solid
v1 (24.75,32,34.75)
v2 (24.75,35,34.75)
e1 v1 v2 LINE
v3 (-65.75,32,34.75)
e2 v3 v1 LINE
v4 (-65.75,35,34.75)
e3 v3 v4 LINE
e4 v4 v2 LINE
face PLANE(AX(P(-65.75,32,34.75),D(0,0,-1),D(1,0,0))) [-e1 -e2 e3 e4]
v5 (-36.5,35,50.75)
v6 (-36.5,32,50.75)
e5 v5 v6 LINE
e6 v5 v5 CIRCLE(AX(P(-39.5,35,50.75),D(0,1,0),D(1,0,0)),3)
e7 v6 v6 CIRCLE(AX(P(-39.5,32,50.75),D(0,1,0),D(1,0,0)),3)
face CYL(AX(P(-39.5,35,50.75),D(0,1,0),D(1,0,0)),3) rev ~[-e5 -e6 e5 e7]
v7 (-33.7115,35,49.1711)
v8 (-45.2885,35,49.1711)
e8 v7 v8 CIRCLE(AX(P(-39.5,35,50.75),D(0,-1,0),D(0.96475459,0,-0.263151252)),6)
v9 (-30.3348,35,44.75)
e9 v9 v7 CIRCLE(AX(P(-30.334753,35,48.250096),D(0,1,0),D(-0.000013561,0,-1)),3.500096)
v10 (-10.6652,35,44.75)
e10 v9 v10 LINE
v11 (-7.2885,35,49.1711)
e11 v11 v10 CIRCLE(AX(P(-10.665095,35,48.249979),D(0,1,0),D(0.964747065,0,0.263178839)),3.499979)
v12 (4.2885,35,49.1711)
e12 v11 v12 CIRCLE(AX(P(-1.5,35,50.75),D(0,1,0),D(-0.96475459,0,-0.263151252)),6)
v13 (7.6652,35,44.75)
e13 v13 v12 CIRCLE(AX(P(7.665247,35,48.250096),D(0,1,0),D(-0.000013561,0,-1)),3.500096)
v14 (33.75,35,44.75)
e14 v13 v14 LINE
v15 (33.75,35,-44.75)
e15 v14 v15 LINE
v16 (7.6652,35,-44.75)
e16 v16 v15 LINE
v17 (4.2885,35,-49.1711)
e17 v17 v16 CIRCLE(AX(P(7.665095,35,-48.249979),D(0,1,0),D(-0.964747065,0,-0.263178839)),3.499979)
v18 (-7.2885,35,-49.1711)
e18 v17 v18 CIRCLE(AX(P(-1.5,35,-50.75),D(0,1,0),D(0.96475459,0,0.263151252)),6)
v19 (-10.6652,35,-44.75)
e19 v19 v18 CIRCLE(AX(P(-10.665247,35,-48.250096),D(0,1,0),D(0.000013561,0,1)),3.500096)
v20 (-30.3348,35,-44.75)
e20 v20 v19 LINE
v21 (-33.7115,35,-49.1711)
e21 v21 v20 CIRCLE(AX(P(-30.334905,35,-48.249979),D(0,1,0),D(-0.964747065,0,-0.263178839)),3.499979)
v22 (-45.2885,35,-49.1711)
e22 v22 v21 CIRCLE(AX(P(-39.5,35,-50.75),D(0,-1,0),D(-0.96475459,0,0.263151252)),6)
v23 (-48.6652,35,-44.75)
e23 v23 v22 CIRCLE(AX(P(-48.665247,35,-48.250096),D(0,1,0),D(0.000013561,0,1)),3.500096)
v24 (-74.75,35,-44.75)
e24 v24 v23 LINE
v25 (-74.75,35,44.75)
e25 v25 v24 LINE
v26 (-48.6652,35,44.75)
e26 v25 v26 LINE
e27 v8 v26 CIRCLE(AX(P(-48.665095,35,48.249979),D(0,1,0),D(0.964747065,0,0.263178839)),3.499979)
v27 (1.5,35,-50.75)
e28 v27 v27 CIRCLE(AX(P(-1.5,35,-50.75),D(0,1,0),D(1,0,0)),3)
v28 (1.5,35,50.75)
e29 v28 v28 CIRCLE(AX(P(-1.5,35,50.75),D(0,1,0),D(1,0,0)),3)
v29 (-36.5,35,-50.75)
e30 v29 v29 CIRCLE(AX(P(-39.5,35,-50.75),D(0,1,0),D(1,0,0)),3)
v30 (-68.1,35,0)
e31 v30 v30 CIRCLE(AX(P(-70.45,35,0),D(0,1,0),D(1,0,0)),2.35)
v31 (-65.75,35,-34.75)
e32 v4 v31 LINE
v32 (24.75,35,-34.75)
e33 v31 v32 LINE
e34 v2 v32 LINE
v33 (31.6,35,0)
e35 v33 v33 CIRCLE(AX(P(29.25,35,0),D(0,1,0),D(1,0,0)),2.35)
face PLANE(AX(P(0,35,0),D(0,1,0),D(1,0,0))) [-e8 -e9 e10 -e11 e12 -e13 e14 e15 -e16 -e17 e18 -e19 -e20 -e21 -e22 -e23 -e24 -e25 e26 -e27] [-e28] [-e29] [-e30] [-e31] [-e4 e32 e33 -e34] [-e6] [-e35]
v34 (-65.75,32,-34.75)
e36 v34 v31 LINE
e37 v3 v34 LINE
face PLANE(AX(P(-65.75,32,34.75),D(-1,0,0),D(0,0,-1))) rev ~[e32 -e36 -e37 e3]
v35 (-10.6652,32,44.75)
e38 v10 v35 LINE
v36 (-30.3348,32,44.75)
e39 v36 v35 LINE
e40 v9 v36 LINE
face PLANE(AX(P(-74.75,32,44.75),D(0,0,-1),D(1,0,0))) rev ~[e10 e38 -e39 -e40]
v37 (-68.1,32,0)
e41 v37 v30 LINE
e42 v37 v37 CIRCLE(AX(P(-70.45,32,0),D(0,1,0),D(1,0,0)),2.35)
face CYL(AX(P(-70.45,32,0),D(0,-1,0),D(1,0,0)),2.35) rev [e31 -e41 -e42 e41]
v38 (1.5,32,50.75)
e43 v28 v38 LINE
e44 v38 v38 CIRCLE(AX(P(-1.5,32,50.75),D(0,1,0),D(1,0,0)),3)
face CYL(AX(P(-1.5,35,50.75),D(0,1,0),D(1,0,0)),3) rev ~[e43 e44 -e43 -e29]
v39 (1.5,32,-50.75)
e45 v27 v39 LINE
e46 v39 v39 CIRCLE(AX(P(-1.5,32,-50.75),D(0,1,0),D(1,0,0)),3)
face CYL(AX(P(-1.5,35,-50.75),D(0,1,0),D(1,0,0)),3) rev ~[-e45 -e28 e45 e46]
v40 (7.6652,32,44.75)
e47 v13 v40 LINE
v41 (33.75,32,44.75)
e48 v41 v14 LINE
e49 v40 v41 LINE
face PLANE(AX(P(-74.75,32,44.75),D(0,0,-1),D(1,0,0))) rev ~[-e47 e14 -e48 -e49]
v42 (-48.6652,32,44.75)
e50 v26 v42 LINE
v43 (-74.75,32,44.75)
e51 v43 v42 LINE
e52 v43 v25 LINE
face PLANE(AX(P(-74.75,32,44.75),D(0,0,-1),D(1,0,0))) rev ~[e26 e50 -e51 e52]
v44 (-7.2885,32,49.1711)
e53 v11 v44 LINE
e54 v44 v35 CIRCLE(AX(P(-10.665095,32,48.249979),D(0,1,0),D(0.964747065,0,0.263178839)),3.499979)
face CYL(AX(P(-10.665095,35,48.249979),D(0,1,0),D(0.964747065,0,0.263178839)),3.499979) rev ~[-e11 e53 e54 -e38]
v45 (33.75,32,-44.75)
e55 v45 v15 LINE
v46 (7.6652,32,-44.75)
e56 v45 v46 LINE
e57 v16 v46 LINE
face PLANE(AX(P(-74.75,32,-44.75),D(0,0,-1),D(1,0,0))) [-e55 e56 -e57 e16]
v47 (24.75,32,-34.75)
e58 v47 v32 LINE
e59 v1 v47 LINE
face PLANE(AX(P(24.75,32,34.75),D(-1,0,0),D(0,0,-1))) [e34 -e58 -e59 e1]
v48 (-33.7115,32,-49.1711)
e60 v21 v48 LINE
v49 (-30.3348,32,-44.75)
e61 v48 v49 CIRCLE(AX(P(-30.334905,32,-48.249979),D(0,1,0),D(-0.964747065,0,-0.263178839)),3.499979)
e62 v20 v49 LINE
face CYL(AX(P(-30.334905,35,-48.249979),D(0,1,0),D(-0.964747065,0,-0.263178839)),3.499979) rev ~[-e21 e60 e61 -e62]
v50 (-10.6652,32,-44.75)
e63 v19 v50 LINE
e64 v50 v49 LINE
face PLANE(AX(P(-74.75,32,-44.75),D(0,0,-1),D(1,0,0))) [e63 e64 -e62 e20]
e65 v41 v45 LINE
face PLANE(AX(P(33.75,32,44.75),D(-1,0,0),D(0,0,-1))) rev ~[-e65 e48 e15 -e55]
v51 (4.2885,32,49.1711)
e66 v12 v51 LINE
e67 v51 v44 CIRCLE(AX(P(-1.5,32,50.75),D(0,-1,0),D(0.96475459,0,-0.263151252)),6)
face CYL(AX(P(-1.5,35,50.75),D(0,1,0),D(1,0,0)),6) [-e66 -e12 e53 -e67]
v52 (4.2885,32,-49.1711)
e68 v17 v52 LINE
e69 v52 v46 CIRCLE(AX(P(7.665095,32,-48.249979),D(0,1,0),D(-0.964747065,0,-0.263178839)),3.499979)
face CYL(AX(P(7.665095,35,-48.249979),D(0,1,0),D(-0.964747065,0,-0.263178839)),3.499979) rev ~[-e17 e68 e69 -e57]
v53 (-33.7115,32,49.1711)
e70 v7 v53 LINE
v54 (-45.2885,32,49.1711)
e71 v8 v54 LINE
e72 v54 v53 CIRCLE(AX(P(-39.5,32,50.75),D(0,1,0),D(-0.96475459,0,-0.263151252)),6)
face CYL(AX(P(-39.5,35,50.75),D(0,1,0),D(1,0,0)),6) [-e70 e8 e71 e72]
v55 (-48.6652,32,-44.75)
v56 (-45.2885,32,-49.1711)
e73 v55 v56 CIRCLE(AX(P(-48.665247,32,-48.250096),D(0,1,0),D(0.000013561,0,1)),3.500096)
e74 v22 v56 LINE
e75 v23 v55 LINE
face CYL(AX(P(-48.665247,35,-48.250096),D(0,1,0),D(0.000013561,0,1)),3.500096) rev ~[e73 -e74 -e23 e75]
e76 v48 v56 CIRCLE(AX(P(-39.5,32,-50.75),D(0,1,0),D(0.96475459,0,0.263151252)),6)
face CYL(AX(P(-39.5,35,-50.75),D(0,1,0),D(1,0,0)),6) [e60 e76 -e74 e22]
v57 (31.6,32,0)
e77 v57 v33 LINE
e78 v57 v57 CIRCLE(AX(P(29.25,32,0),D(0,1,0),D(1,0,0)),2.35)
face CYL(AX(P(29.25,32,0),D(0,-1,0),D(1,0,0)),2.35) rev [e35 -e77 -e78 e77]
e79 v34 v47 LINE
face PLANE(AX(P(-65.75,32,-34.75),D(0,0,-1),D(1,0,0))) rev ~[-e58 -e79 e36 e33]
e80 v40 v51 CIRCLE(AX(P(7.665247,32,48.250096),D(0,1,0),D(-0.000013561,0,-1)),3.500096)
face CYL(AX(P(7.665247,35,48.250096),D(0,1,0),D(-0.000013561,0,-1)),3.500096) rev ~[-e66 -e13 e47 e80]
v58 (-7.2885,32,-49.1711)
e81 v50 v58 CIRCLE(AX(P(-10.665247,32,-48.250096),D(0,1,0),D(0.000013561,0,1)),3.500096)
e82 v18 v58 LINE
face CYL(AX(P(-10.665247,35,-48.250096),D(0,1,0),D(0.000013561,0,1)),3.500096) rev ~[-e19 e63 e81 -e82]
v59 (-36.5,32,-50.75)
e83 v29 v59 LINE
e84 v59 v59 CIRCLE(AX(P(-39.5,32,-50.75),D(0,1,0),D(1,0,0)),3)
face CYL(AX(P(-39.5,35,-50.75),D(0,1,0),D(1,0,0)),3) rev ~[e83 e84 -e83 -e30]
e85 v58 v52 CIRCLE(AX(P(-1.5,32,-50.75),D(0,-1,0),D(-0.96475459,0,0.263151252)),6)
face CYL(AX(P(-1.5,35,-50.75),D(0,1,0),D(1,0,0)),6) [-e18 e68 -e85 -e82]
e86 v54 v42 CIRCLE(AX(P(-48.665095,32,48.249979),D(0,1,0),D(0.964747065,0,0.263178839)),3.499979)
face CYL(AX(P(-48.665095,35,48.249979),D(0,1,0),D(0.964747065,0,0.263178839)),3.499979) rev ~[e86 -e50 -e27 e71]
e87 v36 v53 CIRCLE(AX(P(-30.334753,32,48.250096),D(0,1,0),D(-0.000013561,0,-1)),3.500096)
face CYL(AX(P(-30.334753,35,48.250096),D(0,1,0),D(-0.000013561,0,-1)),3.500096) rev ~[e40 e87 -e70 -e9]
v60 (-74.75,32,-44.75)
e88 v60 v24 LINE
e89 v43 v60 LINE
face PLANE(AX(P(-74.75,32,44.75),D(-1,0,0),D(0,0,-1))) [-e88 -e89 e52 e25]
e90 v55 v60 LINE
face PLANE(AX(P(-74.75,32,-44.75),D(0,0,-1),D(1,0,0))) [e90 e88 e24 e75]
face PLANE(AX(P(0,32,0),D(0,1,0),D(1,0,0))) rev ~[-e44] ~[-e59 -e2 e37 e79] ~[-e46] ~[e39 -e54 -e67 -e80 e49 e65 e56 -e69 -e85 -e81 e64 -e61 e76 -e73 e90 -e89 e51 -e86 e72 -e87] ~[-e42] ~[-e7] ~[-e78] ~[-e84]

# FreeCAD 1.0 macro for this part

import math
import FreeCAD as App
import Part
import Sketcher
Q = App.Units.Quantity


def add_polygon(sketch, points):
    """Adds a closed chain of lines whose ends are joined by coincident constraints."""
    first, n = sketch.GeometryCount, len(points)
    for a, b in zip(points, points[1:] + points[:1]):
        sketch.addGeometry(Part.LineSegment(App.Vector(*a, 0), App.Vector(*b, 0)), False)
    for i in range(n):
        sketch.addConstraint(Sketcher.Constraint("Coincident", first + i, 2, first + (i + 1) % n, 1))

doc = App.newDocument("Part")
body = doc.addObject("PartDesign::Body", "Body")

# Sketch on XZ plane
sketch1 = body.newObject("Sketcher::SketchObject", "Sketch")
sketch1.AttachmentSupport = (doc.getObject("XZ_Plane"), [""])
sketch1.MapMode = "FlatFace"
sketch1.AttachmentOffset = App.Placement(App.Vector(0, 0, -32), App.Rotation())
add_polygon(sketch1, [(-75, -45), (-75, 45), (34, 45), (34, -45)])  # lines 0-3
add_polygon(sketch1, [(-66, 35), (-66, -35), (25, -35), (25, 35)])  # lines 4-7
sketch1.addConstraint([
    Sketcher.Constraint("Vertical", 0),
    Sketcher.Constraint("Horizontal", 1),
    Sketcher.Constraint("Vertical", 2),
    Sketcher.Constraint("Horizontal", 3),
    Sketcher.Constraint("Vertical", 4),
    Sketcher.Constraint("Horizontal", 5),
    Sketcher.Constraint("Vertical", 6),
    Sketcher.Constraint("Horizontal", 7),
    Sketcher.Constraint("DistanceX", 5, 1, 5, 2, Q("90.5 mm")),
    Sketcher.Constraint("DistanceY", 4, 2, 4, 1, Q("69.5 mm")),
    Sketcher.Constraint("DistanceX", 3, 2, 4, 2, Q("9 mm")),
    Sketcher.Constraint("DistanceY", 3, 2, 4, 2, Q("10 mm")),
    Sketcher.Constraint("DistanceX", 5, 2, 2, 2, Q("9 mm")),
    Sketcher.Constraint("DistanceY", 6, 2, 1, 2, Q("10 mm")),
    Sketcher.Constraint("DistanceX", 0, 2, -1, 1, Q("74.75 mm")),
    Sketcher.Constraint("DistanceY", -1, 1, 0, 2, Q("44.75 mm")),
])
pad1 = body.newObject("PartDesign::Pad", "Pad")
pad1.Profile = sketch1
pad1.Length = 3
pad1.Reversed = True

# Sketch on XZ plane
sketch2 = body.newObject("Sketcher::SketchObject", "Sketch001")
sketch2.AttachmentSupport = (doc.getObject("XZ_Plane"), [""])
sketch2.MapMode = "FlatFace"
sketch2.AttachmentOffset = App.Placement(App.Vector(0, 0, -32), App.Rotation())
sketch2.addGeometry([
    Part.Circle(App.Vector(-70.5, 0, 0), App.Vector(0, 0, 1), 2.4),
    Part.Circle(App.Vector(29.2, 0, 0), App.Vector(0, 0, 1), 2.4),
], False)
sketch2.addConstraint([
    Sketcher.Constraint("Equal", 0, 1),
    Sketcher.Constraint("PointOnObject", 0, 3, -1),
    Sketcher.Constraint("PointOnObject", 1, 3, -1),
    Sketcher.Constraint("Diameter", 0, Q("4.7 mm")),
    Sketcher.Constraint("DistanceX", 0, 3, 1, 3, Q("99.7 mm")),
    Sketcher.Constraint("DistanceX", 0, 3, -1, 1, Q("70.45 mm")),
])
pocket1 = body.newObject("PartDesign::Pocket", "Pocket")
pocket1.Profile = sketch2
pocket1.Length = 3

# Sketch on XZ plane
sketch3 = body.newObject("Sketcher::SketchObject", "Sketch002")
sketch3.AttachmentSupport = (doc.getObject("XZ_Plane"), [""])
sketch3.MapMode = "FlatFace"
sketch3.AttachmentOffset = App.Placement(App.Vector(0, 0, -35), App.Rotation())
sketch3.addGeometry([
    Part.ArcOfCircle(Part.Circle(App.Vector(-39.5, 50.8, 0), App.Vector(0, 0, 1), 6), math.radians(-15), math.radians(195)),  # 0
    Part.ArcOfCircle(Part.Circle(App.Vector(-30.3, 48.2, 0), App.Vector(0, 0, 1), 3.5), math.radians(165), math.radians(270)),  # 1
    Part.LineSegment(App.Vector(-30.3, 44.8, 0), App.Vector(-48.7, 44.8, 0)),  # 2
    Part.ArcOfCircle(Part.Circle(App.Vector(-48.7, 48.2, 0), App.Vector(0, 0, 1), 3.5), math.radians(-90), math.radians(15)),  # 3
    Part.Circle(App.Vector(-39.5, 50.8, 0), App.Vector(0, 0, 1), 3),  # 4
    Part.ArcOfCircle(Part.Circle(App.Vector(-10.7, 48.2, 0), App.Vector(0, 0, 1), 3.5), math.radians(-90), math.radians(15)),  # 5
    Part.ArcOfCircle(Part.Circle(App.Vector(-1.5, 50.8, 0), App.Vector(0, 0, 1), 6), math.radians(-15), math.radians(195)),  # 6
    Part.ArcOfCircle(Part.Circle(App.Vector(7.7, 48.2, 0), App.Vector(0, 0, 1), 3.5), math.radians(165), math.radians(270)),  # 7
    Part.LineSegment(App.Vector(7.7, 44.8, 0), App.Vector(-10.7, 44.8, 0)),  # 8
    Part.Circle(App.Vector(-1.5, 50.8, 0), App.Vector(0, 0, 1), 3),  # 9
    Part.ArcOfCircle(Part.Circle(App.Vector(-48.7, -48.2, 0), App.Vector(0, 0, 1), 3.5), math.radians(-15), math.radians(90)),  # 10
    Part.LineSegment(App.Vector(-48.7, -44.8, 0), App.Vector(-30.3, -44.8, 0)),  # 11
    Part.ArcOfCircle(Part.Circle(App.Vector(-30.3, -48.2, 0), App.Vector(0, 0, 1), 3.5), math.radians(90), math.radians(195)),  # 12
    Part.ArcOfCircle(Part.Circle(App.Vector(-39.5, -50.8, 0), App.Vector(0, 0, 1), 6), math.radians(165), math.radians(375)),  # 13
    Part.Circle(App.Vector(-39.5, -50.8, 0), App.Vector(0, 0, 1), 3),  # 14
    Part.ArcOfCircle(Part.Circle(App.Vector(7.7, -48.2, 0), App.Vector(0, 0, 1), 3.5), math.radians(90), math.radians(195)),  # 15
    Part.ArcOfCircle(Part.Circle(App.Vector(-1.5, -50.8, 0), App.Vector(0, 0, 1), 6), math.radians(165), math.radians(375)),  # 16
    Part.ArcOfCircle(Part.Circle(App.Vector(-10.7, -48.2, 0), App.Vector(0, 0, 1), 3.5), math.radians(-15), math.radians(90)),  # 17
    Part.LineSegment(App.Vector(-10.7, -44.8, 0), App.Vector(7.7, -44.8, 0)),  # 18
    Part.Circle(App.Vector(-1.5, -50.8, 0), App.Vector(0, 0, 1), 3),  # 19
], False)
sketch3.addConstraint([
    Sketcher.Constraint("Tangent", 0, 1, 1, 1),
    Sketcher.Constraint("Tangent", 1, 2, 2, 1),
    Sketcher.Constraint("Tangent", 2, 2, 3, 1),
    Sketcher.Constraint("Tangent", 3, 2, 0, 2),
    Sketcher.Constraint("Tangent", 5, 2, 6, 2),
    Sketcher.Constraint("Tangent", 6, 1, 7, 1),
    Sketcher.Constraint("Tangent", 7, 2, 8, 1),
    Sketcher.Constraint("Tangent", 8, 2, 5, 1),
    Sketcher.Constraint("Tangent", 10, 2, 11, 1),
    Sketcher.Constraint("Tangent", 11, 2, 12, 1),
    Sketcher.Constraint("Tangent", 12, 2, 13, 2),
    Sketcher.Constraint("Tangent", 13, 1, 10, 1),
    Sketcher.Constraint("Tangent", 15, 2, 16, 2),
    Sketcher.Constraint("Tangent", 16, 1, 17, 1),
    Sketcher.Constraint("Tangent", 17, 2, 18, 1),
    Sketcher.Constraint("Tangent", 18, 2, 15, 1),
    Sketcher.Constraint("Horizontal", 2),
    Sketcher.Constraint("Horizontal", 8),
    Sketcher.Constraint("Horizontal", 11),
    Sketcher.Constraint("Horizontal", 18),
    Sketcher.Constraint("Coincident", 4, 3, 0, 3),
    Sketcher.Constraint("Coincident", 9, 3, 6, 3),
    Sketcher.Constraint("Coincident", 14, 3, 13, 3),
    Sketcher.Constraint("Coincident", 19, 3, 16, 3),
    Sketcher.Constraint("Equal", 1, 3),
    Sketcher.Constraint("Equal", 3, 5),
    Sketcher.Constraint("Equal", 0, 6),
    Sketcher.Constraint("Equal", 5, 7),
    Sketcher.Constraint("Equal", 4, 9),
    Sketcher.Constraint("Equal", 7, 10),
    Sketcher.Constraint("Equal", 10, 12),
    Sketcher.Constraint("Equal", 6, 13),
    Sketcher.Constraint("Equal", 9, 14),
    Sketcher.Constraint("Equal", 12, 15),
    Sketcher.Constraint("Equal", 13, 16),
    Sketcher.Constraint("Equal", 15, 17),
    Sketcher.Constraint("Equal", 14, 19),
    Sketcher.Constraint("Symmetric", 3, 3, 10, 3, -1),
    Sketcher.Constraint("Symmetric", 7, 3, 15, 3, -1),
    Sketcher.Constraint("Horizontal", 3, 3, 5, 3),
    Sketcher.Constraint("Horizontal", 4, 3, 6, 3),
    Sketcher.Constraint("Horizontal", 14, 3, 16, 3),
    Sketcher.Constraint("Vertical", 1, 3, 12, 3),
    Sketcher.Constraint("Diameter", 4, Q("6 mm")),
    Sketcher.Constraint("Radius", 0, Q("6 mm")),
    Sketcher.Constraint("Radius", 1, Q("3.5 mm")),
    Sketcher.Constraint("DistanceX", 3, 3, 5, 3, Q("38 mm")),
    Sketcher.Constraint("DistanceY", 1, 2, 0, 3, Q("6 mm")),
    Sketcher.Constraint("DistanceY", 10, 3, 0, 3, Q("99 mm")),
    Sketcher.Constraint("DistanceX", 0, 3, -1, 1, Q("39.5 mm")),
])
pad2 = body.newObject("PartDesign::Pad", "Pad001")
pad2.Profile = sketch3
pad2.Length = 3

doc.recompute()
